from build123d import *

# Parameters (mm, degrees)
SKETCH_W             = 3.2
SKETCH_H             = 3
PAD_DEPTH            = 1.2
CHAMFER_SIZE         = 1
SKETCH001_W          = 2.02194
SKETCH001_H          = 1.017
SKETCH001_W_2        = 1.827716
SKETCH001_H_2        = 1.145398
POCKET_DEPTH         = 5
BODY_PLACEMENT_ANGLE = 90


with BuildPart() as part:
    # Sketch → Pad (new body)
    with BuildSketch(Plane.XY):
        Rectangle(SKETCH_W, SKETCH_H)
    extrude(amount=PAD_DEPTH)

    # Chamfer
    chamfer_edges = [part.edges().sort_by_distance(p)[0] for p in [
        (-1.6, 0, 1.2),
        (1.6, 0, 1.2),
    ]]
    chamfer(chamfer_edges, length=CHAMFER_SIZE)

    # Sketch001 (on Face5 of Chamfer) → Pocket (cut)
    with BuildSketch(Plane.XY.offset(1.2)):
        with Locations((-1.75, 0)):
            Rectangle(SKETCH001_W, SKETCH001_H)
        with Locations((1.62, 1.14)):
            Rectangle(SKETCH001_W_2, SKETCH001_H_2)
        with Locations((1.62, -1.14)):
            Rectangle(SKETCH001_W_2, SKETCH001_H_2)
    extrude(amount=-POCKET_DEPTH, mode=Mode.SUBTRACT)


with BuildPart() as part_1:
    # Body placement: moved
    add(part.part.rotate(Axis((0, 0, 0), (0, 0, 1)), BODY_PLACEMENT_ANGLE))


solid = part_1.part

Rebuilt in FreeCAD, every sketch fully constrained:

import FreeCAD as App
import Part
import Sketcher


def edges_at(feature, points):
    """Names of the edges that pass closest to the given points."""
    edges = feature.Shape.Edges
    near = lambda p: min(range(len(edges)), key=lambda i: edges[i].distToShape(Part.Vertex(*p))[0])
    return sorted({f"Edge{near(p) + 1}" for p in points})

doc = App.newDocument("Part")
body = doc.addObject("PartDesign::Body", "Body")

sketch1 = doc.addObject("Sketcher::SketchObject", "Sketch")
body.addObject(sketch1)
sketch1.AttachmentSupport = (doc.XY_Plane, [""])
sketch1.MapMode = "FlatFace"
sketch1.addGeometry(Part.LineSegment(App.Vector(-1.6, 1.5, 0), App.Vector(-1.6, -1.5, 0)), False)
sketch1.addGeometry(Part.LineSegment(App.Vector(-1.6, -1.5, 0), App.Vector(1.6, -1.5, 0)), False)
sketch1.addGeometry(Part.LineSegment(App.Vector(1.6, -1.5, 0), App.Vector(1.6, 1.5, 0)), False)
sketch1.addGeometry(Part.LineSegment(App.Vector(1.6, 1.5, 0), App.Vector(-1.6, 1.5, 0)), False)
sketch1.addConstraint(Sketcher.Constraint("Coincident", 0, 2, 1, 1))
sketch1.addConstraint(Sketcher.Constraint("Coincident", 1, 2, 2, 1))
sketch1.addConstraint(Sketcher.Constraint("Coincident", 2, 2, 3, 1))
sketch1.addConstraint(Sketcher.Constraint("Coincident", 3, 2, 0, 1))
sketch1.addConstraint(Sketcher.Constraint("Vertical", 0))
sketch1.addConstraint(Sketcher.Constraint("Horizontal", 1))
sketch1.addConstraint(Sketcher.Constraint("Vertical", 2))
sketch1.addConstraint(Sketcher.Constraint("Horizontal", 3))
sketch1.addConstraint(Sketcher.Constraint("Symmetric", 0, 2, 2, 2, -1, 1))
sketch1.addConstraint(Sketcher.Constraint("DistanceY", 0, 2, 0, 1, 3.0))
sketch1.addConstraint(Sketcher.Constraint("DistanceX", 1, 1, 1, 2, 3.2))
pad1 = doc.addObject("PartDesign::Pad", "Pad")
body.addObject(pad1)
pad1.Profile = sketch1
pad1.Length = 1.2
doc.recompute()

chamfer = doc.addObject("PartDesign::Chamfer", "Chamfer")
body.addObject(chamfer)
chamfer.Base = (pad1, edges_at(pad1, [(-1.6, 0, 1.2), (1.6, 0, 1.2)]))
chamfer.Size = 1

sketch2 = doc.addObject("Sketcher::SketchObject", "Sketch001")
body.addObject(sketch2)
sketch2.AttachmentSupport = (doc.XY_Plane, [""])
sketch2.MapMode = "FlatFace"
sketch2.AttachmentOffset = App.Placement(App.Vector(0, 0, 1.2), App.Rotation())
sketch2.addGeometry(Part.LineSegment(App.Vector(-2.8, 0.5, 0), App.Vector(-2.8, -0.5, 0)), False)
sketch2.addGeometry(Part.LineSegment(App.Vector(-2.8, -0.5, 0), App.Vector(-0.7, -0.5, 0)), False)
sketch2.addGeometry(Part.LineSegment(App.Vector(-0.7, -0.5, 0), App.Vector(-0.7, 0.5, 0)), False)
sketch2.addGeometry(Part.LineSegment(App.Vector(-0.7, 0.5, 0), App.Vector(-2.8, 0.5, 0)), False)
sketch2.addGeometry(Part.LineSegment(App.Vector(0.7, 1.7, 0), App.Vector(0.7, 0.6, 0)), False)
sketch2.addGeometry(Part.LineSegment(App.Vector(0.7, 0.6, 0), App.Vector(2.5, 0.6, 0)), False)
sketch2.addGeometry(Part.LineSegment(App.Vector(2.5, 0.6, 0), App.Vector(2.5, 1.7, 0)), False)
sketch2.addGeometry(Part.LineSegment(App.Vector(2.5, 1.7, 0), App.Vector(0.7, 1.7, 0)), False)
sketch2.addGeometry(Part.LineSegment(App.Vector(0.7, -0.6, 0), App.Vector(0.7, -1.7, 0)), False)
sketch2.addGeometry(Part.LineSegment(App.Vector(0.7, -1.7, 0), App.Vector(2.5, -1.7, 0)), False)
sketch2.addGeometry(Part.LineSegment(App.Vector(2.5, -1.7, 0), App.Vector(2.5, -0.6, 0)), False)
sketch2.addGeometry(Part.LineSegment(App.Vector(2.5, -0.6, 0), App.Vector(0.7, -0.6, 0)), False)
sketch2.addConstraint(Sketcher.Constraint("Coincident", 0, 2, 1, 1))
sketch2.addConstraint(Sketcher.Constraint("Coincident", 1, 2, 2, 1))
sketch2.addConstraint(Sketcher.Constraint("Coincident", 2, 2, 3, 1))
sketch2.addConstraint(Sketcher.Constraint("Coincident", 3, 2, 0, 1))
sketch2.addConstraint(Sketcher.Constraint("Coincident", 4, 2, 5, 1))
sketch2.addConstraint(Sketcher.Constraint("Coincident", 5, 2, 6, 1))
sketch2.addConstraint(Sketcher.Constraint("Coincident", 6, 2, 7, 1))
sketch2.addConstraint(Sketcher.Constraint("Coincident", 7, 2, 4, 1))
sketch2.addConstraint(Sketcher.Constraint("Coincident", 8, 2, 9, 1))
sketch2.addConstraint(Sketcher.Constraint("Coincident", 9, 2, 10, 1))
sketch2.addConstraint(Sketcher.Constraint("Coincident", 10, 2, 11, 1))
sketch2.addConstraint(Sketcher.Constraint("Coincident", 11, 2, 8, 1))
sketch2.addConstraint(Sketcher.Constraint("Vertical", 0))
sketch2.addConstraint(Sketcher.Constraint("Horizontal", 1))
sketch2.addConstraint(Sketcher.Constraint("Vertical", 2))
sketch2.addConstraint(Sketcher.Constraint("Horizontal", 3))
sketch2.addConstraint(Sketcher.Constraint("Vertical", 4))
sketch2.addConstraint(Sketcher.Constraint("Horizontal", 5))
sketch2.addConstraint(Sketcher.Constraint("Vertical", 6))
sketch2.addConstraint(Sketcher.Constraint("Horizontal", 7))
sketch2.addConstraint(Sketcher.Constraint("Vertical", 8))
sketch2.addConstraint(Sketcher.Constraint("Horizontal", 9))
sketch2.addConstraint(Sketcher.Constraint("Vertical", 10))
sketch2.addConstraint(Sketcher.Constraint("Horizontal", 11))
sketch2.addConstraint(Sketcher.Constraint("Symmetric", 7, 2, 8, 2, -1))
sketch2.addConstraint(Sketcher.Constraint("Symmetric", 5, 2, 10, 2, -1))
sketch2.addConstraint(Sketcher.Constraint("DistanceY", 0, 2, 0, 1, 1.017))
sketch2.addConstraint(Sketcher.Constraint("DistanceY", 8, 2, 4, 2, 2.28))
sketch2.addConstraint(Sketcher.Constraint("DistanceX", 1, 1, 1, 2, 2.02194))
sketch2.addConstraint(Sketcher.Constraint("DistanceY", 0, 2, -1, 1, 0.5085))
sketch2.addConstraint(Sketcher.Constraint("DistanceY", -1, 1, 4, 2, 0.567301))
sketch2.addConstraint(Sketcher.Constraint("DistanceX", 5, 1, 5, 2, 1.827716))
sketch2.addConstraint(Sketcher.Constraint("DistanceX", 0, 2, -1, 1, 2.76097))
sketch2.addConstraint(Sketcher.Constraint("DistanceX", -1, 1, 5, 2, 2.533858))
pocket1 = doc.addObject("PartDesign::Pocket", "Pocket")
body.addObject(pocket1)
pocket1.Profile = sketch2
pocket1.Length = 5
body2 = doc.addObject("PartDesign::Body", "Body001")
doc.recompute()

body.Placement = App.Placement(App.Vector(0, 0, 0), App.Rotation(App.Vector(0, 0, 1), 90))
boolean = doc.addObject("PartDesign::Boolean", "Boolean")
body2.addObject(boolean)
boolean.Type = "Fuse"
boolean.addObjects([body])

doc.recompute()
